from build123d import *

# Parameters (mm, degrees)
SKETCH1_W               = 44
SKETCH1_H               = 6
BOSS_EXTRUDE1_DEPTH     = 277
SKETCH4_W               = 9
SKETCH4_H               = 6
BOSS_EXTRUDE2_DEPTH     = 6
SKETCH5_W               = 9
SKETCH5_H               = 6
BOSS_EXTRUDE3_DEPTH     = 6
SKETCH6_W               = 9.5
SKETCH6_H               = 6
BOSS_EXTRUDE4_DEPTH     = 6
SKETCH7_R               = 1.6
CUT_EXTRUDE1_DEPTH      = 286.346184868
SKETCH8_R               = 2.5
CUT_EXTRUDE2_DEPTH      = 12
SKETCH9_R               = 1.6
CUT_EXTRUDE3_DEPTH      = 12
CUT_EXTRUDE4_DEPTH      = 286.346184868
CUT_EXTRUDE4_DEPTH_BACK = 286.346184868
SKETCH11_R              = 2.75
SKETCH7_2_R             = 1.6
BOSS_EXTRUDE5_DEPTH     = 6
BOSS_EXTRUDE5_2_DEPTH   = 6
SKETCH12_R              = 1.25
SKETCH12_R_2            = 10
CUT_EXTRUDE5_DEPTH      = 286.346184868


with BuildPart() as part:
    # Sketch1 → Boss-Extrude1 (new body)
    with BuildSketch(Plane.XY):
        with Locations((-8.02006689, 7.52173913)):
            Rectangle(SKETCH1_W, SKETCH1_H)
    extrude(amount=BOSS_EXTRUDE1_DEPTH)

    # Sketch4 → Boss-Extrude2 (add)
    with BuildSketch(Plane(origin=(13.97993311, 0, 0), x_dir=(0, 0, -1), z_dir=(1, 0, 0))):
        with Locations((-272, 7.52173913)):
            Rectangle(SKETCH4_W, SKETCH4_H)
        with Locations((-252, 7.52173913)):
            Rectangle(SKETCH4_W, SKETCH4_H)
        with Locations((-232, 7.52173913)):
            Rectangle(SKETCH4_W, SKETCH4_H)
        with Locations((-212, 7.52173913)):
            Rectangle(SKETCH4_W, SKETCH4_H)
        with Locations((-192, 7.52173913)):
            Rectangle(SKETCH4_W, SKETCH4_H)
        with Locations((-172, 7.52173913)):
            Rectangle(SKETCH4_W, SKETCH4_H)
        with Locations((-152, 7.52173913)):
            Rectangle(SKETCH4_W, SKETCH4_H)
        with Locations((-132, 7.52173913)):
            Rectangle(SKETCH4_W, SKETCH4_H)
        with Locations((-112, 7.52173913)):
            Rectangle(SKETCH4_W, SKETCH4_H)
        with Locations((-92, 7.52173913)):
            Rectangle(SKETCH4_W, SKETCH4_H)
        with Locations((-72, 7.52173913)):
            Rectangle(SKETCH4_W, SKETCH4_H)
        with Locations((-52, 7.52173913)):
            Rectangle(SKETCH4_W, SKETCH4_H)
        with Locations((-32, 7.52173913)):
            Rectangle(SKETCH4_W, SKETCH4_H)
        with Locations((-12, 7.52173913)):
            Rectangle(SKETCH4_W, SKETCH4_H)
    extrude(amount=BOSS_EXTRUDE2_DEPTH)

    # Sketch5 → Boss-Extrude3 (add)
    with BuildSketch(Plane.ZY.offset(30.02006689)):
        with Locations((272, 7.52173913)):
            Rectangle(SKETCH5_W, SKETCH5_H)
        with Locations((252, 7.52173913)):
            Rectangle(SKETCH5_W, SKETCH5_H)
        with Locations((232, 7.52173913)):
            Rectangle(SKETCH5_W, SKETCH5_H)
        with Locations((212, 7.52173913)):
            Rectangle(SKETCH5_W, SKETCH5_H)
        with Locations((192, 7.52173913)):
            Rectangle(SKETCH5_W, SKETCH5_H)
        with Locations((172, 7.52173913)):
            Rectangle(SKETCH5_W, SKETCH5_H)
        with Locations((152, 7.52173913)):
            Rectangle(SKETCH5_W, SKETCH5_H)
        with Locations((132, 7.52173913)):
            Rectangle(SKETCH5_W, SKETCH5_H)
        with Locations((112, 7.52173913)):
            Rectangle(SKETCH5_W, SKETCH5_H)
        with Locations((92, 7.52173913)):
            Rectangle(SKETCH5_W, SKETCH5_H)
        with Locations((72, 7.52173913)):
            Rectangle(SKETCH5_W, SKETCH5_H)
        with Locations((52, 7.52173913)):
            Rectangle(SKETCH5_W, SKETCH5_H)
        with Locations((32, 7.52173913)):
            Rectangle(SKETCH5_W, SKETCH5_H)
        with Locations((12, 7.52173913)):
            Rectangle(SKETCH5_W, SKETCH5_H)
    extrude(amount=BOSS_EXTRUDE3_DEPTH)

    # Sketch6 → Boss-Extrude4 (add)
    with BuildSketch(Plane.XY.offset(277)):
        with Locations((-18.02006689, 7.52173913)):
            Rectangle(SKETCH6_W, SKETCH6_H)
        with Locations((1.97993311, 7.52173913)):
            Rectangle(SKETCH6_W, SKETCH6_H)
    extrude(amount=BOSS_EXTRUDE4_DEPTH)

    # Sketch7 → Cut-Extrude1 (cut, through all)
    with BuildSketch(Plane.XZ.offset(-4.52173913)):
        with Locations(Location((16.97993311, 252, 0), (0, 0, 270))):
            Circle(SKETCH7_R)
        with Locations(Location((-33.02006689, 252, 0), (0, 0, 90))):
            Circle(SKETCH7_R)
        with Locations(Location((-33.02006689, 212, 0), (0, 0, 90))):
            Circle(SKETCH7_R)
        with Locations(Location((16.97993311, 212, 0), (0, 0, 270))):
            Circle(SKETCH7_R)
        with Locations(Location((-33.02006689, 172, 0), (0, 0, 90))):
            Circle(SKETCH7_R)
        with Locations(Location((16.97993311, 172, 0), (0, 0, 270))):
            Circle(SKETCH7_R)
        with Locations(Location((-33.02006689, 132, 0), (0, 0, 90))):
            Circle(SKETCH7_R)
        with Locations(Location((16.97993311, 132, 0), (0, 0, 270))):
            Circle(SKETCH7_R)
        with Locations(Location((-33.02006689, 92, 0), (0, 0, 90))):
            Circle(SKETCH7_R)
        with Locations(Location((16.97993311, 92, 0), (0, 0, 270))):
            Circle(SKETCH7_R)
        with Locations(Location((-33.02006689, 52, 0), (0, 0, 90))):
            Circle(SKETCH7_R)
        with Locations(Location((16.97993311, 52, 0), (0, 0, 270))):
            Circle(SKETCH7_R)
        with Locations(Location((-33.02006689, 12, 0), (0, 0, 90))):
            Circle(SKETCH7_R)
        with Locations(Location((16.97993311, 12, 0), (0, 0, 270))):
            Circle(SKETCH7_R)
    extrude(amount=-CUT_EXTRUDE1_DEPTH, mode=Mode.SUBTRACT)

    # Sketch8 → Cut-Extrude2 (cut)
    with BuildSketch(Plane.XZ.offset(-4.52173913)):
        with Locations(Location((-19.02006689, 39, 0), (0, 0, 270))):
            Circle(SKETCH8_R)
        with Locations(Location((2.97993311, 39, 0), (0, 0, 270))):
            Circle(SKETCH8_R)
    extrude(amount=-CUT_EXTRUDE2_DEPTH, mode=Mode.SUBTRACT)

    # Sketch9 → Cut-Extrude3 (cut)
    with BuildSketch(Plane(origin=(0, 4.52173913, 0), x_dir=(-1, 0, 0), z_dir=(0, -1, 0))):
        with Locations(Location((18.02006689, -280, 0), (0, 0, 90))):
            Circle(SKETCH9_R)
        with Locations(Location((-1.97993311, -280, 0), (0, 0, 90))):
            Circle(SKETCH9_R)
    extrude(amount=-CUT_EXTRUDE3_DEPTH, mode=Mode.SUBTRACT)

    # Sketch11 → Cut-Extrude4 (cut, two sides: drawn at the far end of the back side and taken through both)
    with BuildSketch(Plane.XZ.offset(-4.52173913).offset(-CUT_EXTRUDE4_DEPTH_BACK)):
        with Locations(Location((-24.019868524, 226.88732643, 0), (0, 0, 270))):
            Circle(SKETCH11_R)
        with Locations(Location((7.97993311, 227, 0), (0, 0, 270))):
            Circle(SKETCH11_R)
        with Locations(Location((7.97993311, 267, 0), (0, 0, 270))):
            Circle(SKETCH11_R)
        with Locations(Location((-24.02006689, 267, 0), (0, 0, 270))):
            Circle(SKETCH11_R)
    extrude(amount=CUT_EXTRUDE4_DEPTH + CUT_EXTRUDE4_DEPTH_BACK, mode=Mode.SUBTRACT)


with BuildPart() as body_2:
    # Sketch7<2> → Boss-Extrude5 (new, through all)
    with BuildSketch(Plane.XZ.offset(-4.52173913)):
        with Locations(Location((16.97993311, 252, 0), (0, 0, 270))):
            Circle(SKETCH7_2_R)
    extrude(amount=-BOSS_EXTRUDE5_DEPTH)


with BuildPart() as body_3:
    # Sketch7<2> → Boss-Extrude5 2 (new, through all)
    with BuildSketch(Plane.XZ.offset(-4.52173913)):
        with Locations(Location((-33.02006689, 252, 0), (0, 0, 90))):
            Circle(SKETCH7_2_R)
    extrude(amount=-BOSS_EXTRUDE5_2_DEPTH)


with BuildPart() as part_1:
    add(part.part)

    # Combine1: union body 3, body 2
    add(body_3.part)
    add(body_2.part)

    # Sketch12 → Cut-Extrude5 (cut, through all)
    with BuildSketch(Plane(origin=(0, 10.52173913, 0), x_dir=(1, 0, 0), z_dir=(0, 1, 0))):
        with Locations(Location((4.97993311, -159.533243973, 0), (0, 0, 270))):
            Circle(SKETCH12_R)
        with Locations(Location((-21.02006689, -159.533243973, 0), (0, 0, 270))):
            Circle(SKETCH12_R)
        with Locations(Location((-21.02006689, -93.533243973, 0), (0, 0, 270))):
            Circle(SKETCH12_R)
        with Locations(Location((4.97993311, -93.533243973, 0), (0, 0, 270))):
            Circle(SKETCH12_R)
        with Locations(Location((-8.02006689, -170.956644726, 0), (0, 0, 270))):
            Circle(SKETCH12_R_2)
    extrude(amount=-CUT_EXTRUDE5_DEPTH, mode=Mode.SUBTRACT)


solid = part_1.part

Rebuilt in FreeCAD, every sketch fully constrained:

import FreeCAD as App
import Part
import Sketcher
Q = App.Units.Quantity


def add_polygon(sketch, points):
    """Adds a closed chain of lines whose ends are joined by coincident constraints."""
    first, n = sketch.GeometryCount, len(points)
    for a, b in zip(points, points[1:] + points[:1]):
        sketch.addGeometry(Part.LineSegment(App.Vector(*a, 0), App.Vector(*b, 0)), False)
    for i in range(n):
        sketch.addConstraint(Sketcher.Constraint("Coincident", first + i, 2, first + (i + 1) % n, 1))

doc = App.newDocument("Part")
body = doc.addObject("PartDesign::Body", "Body")

# Sketch on XY plane
sketch1 = body.newObject("Sketcher::SketchObject", "Sketch")
sketch1.AttachmentSupport = (doc.getObject("XY_Plane"), [""])
sketch1.MapMode = "FlatFace"
add_polygon(sketch1, [(-30.020067, 10.521739), (-30.020067, 4.521739), (13.979933, 4.521739), (13.979933, 10.521739)])  # lines 0-3
sketch1.addConstraint([
    Sketcher.Constraint("Vertical", 0),
    Sketcher.Constraint("Horizontal", 1),
    Sketcher.Constraint("Vertical", 2),
    Sketcher.Constraint("Horizontal", 3),
    Sketcher.Constraint("DistanceX", 1, 1, 1, 2, Q("44 mm")),
    Sketcher.Constraint("DistanceY", 0, 2, 0, 1, Q("6 mm")),
    Sketcher.Constraint("DistanceY", -1, 1, 0, 2, Q("4.521739 mm")),
    Sketcher.Constraint("DistanceX", 0, 2, -1, 1, Q("30.020067 mm")),
])
pad1 = body.newObject("PartDesign::Pad", "Pad")
pad1.Profile = sketch1
pad1.Length = 277

# Sketch on YZ plane
sketch2 = body.newObject("Sketcher::SketchObject", "Sketch001")
sketch2.AttachmentSupport = (doc.getObject("YZ_Plane"), [""])
sketch2.MapMode = "FlatFace"
sketch2.AttachmentOffset = App.Placement(App.Vector(0, 0, 13.979933), App.Rotation())
add_polygon(sketch2, [(10.521739, 276.5), (4.521739, 276.5), (4.521739, 267.5), (10.521739, 267.5)])  # lines 0-3
add_polygon(sketch2, [(10.521739, 256.5), (4.521739, 256.5), (4.521739, 247.5), (10.521739, 247.5)])  # lines 4-7
add_polygon(sketch2, [(10.521739, 236.5), (4.521739, 236.5), (4.521739, 227.5), (10.521739, 227.5)])  # lines 8-11
add_polygon(sketch2, [(10.521739, 216.5), (4.521739, 216.5), (4.521739, 207.5), (10.521739, 207.5)])  # lines 12-15
add_polygon(sketch2, [(10.521739, 196.5), (4.521739, 196.5), (4.521739, 187.5), (10.521739, 187.5)])  # lines 16-19
add_polygon(sketch2, [(10.521739, 176.5), (4.521739, 176.5), (4.521739, 167.5), (10.521739, 167.5)])  # lines 20-23
add_polygon(sketch2, [(10.521739, 156.5), (4.521739, 156.5), (4.521739, 147.5), (10.521739, 147.5)])  # lines 24-27
add_polygon(sketch2, [(10.521739, 136.5), (4.521739, 136.5), (4.521739, 127.5), (10.521739, 127.5)])  # lines 28-31
add_polygon(sketch2, [(10.521739, 116.5), (4.521739, 116.5), (4.521739, 107.5), (10.521739, 107.5)])  # lines 32-35
add_polygon(sketch2, [(10.521739, 96.5), (4.521739, 96.5), (4.521739, 87.5), (10.521739, 87.5)])  # lines 36-39
add_polygon(sketch2, [(10.521739, 76.5), (4.521739, 76.5), (4.521739, 67.5), (10.521739, 67.5)])  # lines 40-43
add_polygon(sketch2, [(10.521739, 56.5), (4.521739, 56.5), (4.521739, 47.5), (10.521739, 47.5)])  # lines 44-47
add_polygon(sketch2, [(10.521739, 36.5), (4.521739, 36.5), (4.521739, 27.5), (10.521739, 27.5)])  # lines 48-51
add_polygon(sketch2, [(10.521739, 16.5), (4.521739, 16.5), (4.521739, 7.5), (10.521739, 7.5)])  # lines 52-55
sketch2.addConstraint([
    Sketcher.Constraint("Horizontal", 0),
    Sketcher.Constraint("Vertical", 1),
    Sketcher.Constraint("Horizontal", 2),
    Sketcher.Constraint("Vertical", 3),
    Sketcher.Constraint("Horizontal", 4),
    Sketcher.Constraint("Vertical", 5),
    Sketcher.Constraint("Horizontal", 6),
    Sketcher.Constraint("Vertical", 7),
    Sketcher.Constraint("Horizontal", 8),
    Sketcher.Constraint("Vertical", 9),
    Sketcher.Constraint("Horizontal", 10),
    Sketcher.Constraint("Vertical", 11),
    Sketcher.Constraint("Horizontal", 12),
    Sketcher.Constraint("Vertical", 13),
    Sketcher.Constraint("Horizontal", 14),
    Sketcher.Constraint("Vertical", 15),
    Sketcher.Constraint("Horizontal", 16),
    Sketcher.Constraint("Vertical", 17),
    Sketcher.Constraint("Horizontal", 18),
    Sketcher.Constraint("Vertical", 19),
    Sketcher.Constraint("Horizontal", 20),
    Sketcher.Constraint("Vertical", 21),
    Sketcher.Constraint("Horizontal", 22),
    Sketcher.Constraint("Vertical", 23),
    Sketcher.Constraint("Horizontal", 24),
    Sketcher.Constraint("Vertical", 25),
    Sketcher.Constraint("Horizontal", 26),
    Sketcher.Constraint("Vertical", 27),
    Sketcher.Constraint("Horizontal", 28),
    Sketcher.Constraint("Vertical", 29),
    Sketcher.Constraint("Horizontal", 30),
    Sketcher.Constraint("Vertical", 31),
    Sketcher.Constraint("Horizontal", 32),
    Sketcher.Constraint("Vertical", 33),
    Sketcher.Constraint("Horizontal", 34),
    Sketcher.Constraint("Vertical", 35),
    Sketcher.Constraint("Horizontal", 36),
    Sketcher.Constraint("Vertical", 37),
    Sketcher.Constraint("Horizontal", 38),
    Sketcher.Constraint("Vertical", 39),
    Sketcher.Constraint("Horizontal", 40),
    Sketcher.Constraint("Vertical", 41),
    Sketcher.Constraint("Horizontal", 42),
    Sketcher.Constraint("Vertical", 43),
    Sketcher.Constraint("Horizontal", 44),
    Sketcher.Constraint("Vertical", 45),
    Sketcher.Constraint("Horizontal", 46),
    Sketcher.Constraint("Vertical", 47),
    Sketcher.Constraint("Horizontal", 48),
    Sketcher.Constraint("Vertical", 49),
    Sketcher.Constraint("Horizontal", 50),
    Sketcher.Constraint("Vertical", 51),
    Sketcher.Constraint("Horizontal", 52),
    Sketcher.Constraint("Vertical", 53),
    Sketcher.Constraint("Horizontal", 54),
    Sketcher.Constraint("Vertical", 55),
    Sketcher.Constraint("Vertical", 1, 2, 4, 2),
    Sketcher.Constraint("Vertical", 3, 2, 6, 2),
    Sketcher.Constraint("Vertical", 5, 2, 8, 2),
    Sketcher.Constraint("Vertical", 7, 2, 10, 2),
    Sketcher.Constraint("Vertical", 9, 2, 12, 2),
    Sketcher.Constraint("Vertical", 11, 2, 14, 2),
    Sketcher.Constraint("Vertical", 13, 2, 16, 2),
    Sketcher.Constraint("Vertical", 15, 2, 18, 2),
    Sketcher.Constraint("Vertical", 17, 2, 20, 2),
    Sketcher.Constraint("Vertical", 19, 2, 22, 2),
    Sketcher.Constraint("Vertical", 21, 2, 24, 2),
    Sketcher.Constraint("Vertical", 23, 2, 26, 2),
    Sketcher.Constraint("Vertical", 25, 2, 28, 2),
    Sketcher.Constraint("Vertical", 27, 2, 30, 2),
    Sketcher.Constraint("Vertical", 29, 2, 32, 2),
    Sketcher.Constraint("Vertical", 31, 2, 34, 2),
    Sketcher.Constraint("Vertical", 33, 2, 36, 2),
    Sketcher.Constraint("Vertical", 35, 2, 38, 2),
    Sketcher.Constraint("Vertical", 37, 2, 40, 2),
    Sketcher.Constraint("Vertical", 39, 2, 42, 2),
    Sketcher.Constraint("Vertical", 41, 2, 44, 2),
    Sketcher.Constraint("Vertical", 43, 2, 46, 2),
    Sketcher.Constraint("Vertical", 45, 2, 48, 2),
    Sketcher.Constraint("Vertical", 47, 2, 50, 2),
    Sketcher.Constraint("Vertical", 49, 2, 52, 2),
    Sketcher.Constraint("Vertical", 51, 2, 54, 2),
    Sketcher.Constraint("Equal", 3, 5),
    Sketcher.Constraint("Equal", 7, 9),
    Sketcher.Constraint("Equal", 11, 13),
    Sketcher.Constraint("Equal", 15, 17),
    Sketcher.Constraint("Equal", 19, 21),
    Sketcher.Constraint("Equal", 23, 25),
    Sketcher.Constraint("Equal", 27, 29),
    Sketcher.Constraint("Equal", 31, 33),
    Sketcher.Constraint("Equal", 35, 37),
    Sketcher.Constraint("Equal", 39, 41),
    Sketcher.Constraint("Equal", 43, 45),
    Sketcher.Constraint("Equal", 47, 49),
    Sketcher.Constraint("Equal", 51, 53),
    Sketcher.Constraint("DistanceX", 0, 2, 0, 1, Q("6 mm")),
    Sketcher.Constraint("DistanceY", 1, 2, 1, 1, Q("9 mm")),
    Sketcher.Constraint("DistanceY", 4, 2, 1, 2, Q("11 mm")),
    Sketcher.Constraint("DistanceY", 8, 2, 5, 2, Q("11 mm")),
    Sketcher.Constraint("DistanceY", 12, 2, 9, 2, Q("11 mm")),
    Sketcher.Constraint("DistanceY", 16, 2, 13, 2, Q("11 mm")),
    Sketcher.Constraint("DistanceY", 20, 2, 17, 2, Q("11 mm")),
    Sketcher.Constraint("DistanceY", 24, 2, 21, 2, Q("11 mm")),
    Sketcher.Constraint("DistanceY", 28, 2, 25, 2, Q("11 mm")),
    Sketcher.Constraint("DistanceY", 32, 2, 29, 2, Q("11 mm")),
    Sketcher.Constraint("DistanceY", 36, 2, 33, 2, Q("11 mm")),
    Sketcher.Constraint("DistanceY", 40, 2, 37, 2, Q("11 mm")),
    Sketcher.Constraint("DistanceY", 44, 2, 41, 2, Q("11 mm")),
    Sketcher.Constraint("DistanceY", 48, 2, 45, 2, Q("11 mm")),
    Sketcher.Constraint("DistanceY", 52, 2, 49, 2, Q("11 mm")),
    Sketcher.Constraint("DistanceY", -1, 1, 0, 2, Q("276.5 mm")),
    Sketcher.Constraint("DistanceX", -1, 1, 0, 2, Q("4.521739 mm")),
])
pad2 = body.newObject("PartDesign::Pad", "Pad001")
pad2.Profile = sketch2
pad2.Length = 6

# Sketch on YZ plane
sketch3 = body.newObject("Sketcher::SketchObject", "Sketch002")
sketch3.AttachmentSupport = (doc.getObject("YZ_Plane"), [""])
sketch3.MapMode = "FlatFace"
sketch3.AttachmentOffset = App.Placement(App.Vector(0, 0, -30.020067), App.Rotation())
add_polygon(sketch3, [(10.521739, 267.5), (4.521739, 267.5), (4.521739, 276.5), (10.521739, 276.5)])  # lines 0-3
add_polygon(sketch3, [(10.521739, 247.5), (4.521739, 247.5), (4.521739, 256.5), (10.521739, 256.5)])  # lines 4-7
add_polygon(sketch3, [(10.521739, 227.5), (4.521739, 227.5), (4.521739, 236.5), (10.521739, 236.5)])  # lines 8-11
add_polygon(sketch3, [(10.521739, 207.5), (4.521739, 207.5), (4.521739, 216.5), (10.521739, 216.5)])  # lines 12-15
add_polygon(sketch3, [(10.521739, 187.5), (4.521739, 187.5), (4.521739, 196.5), (10.521739, 196.5)])  # lines 16-19
add_polygon(sketch3, [(10.521739, 167.5), (4.521739, 167.5), (4.521739, 176.5), (10.521739, 176.5)])  # lines 20-23
add_polygon(sketch3, [(10.521739, 147.5), (4.521739, 147.5), (4.521739, 156.5), (10.521739, 156.5)])  # lines 24-27
add_polygon(sketch3, [(10.521739, 127.5), (4.521739, 127.5), (4.521739, 136.5), (10.521739, 136.5)])  # lines 28-31
add_polygon(sketch3, [(10.521739, 107.5), (4.521739, 107.5), (4.521739, 116.5), (10.521739, 116.5)])  # lines 32-35
add_polygon(sketch3, [(10.521739, 87.5), (4.521739, 87.5), (4.521739, 96.5), (10.521739, 96.5)])  # lines 36-39
add_polygon(sketch3, [(10.521739, 67.5), (4.521739, 67.5), (4.521739, 76.5), (10.521739, 76.5)])  # lines 40-43
add_polygon(sketch3, [(10.521739, 47.5), (4.521739, 47.5), (4.521739, 56.5), (10.521739, 56.5)])  # lines 44-47
add_polygon(sketch3, [(10.521739, 27.5), (4.521739, 27.5), (4.521739, 36.5), (10.521739, 36.5)])  # lines 48-51
add_polygon(sketch3, [(10.521739, 7.5), (4.521739, 7.5), (4.521739, 16.5), (10.521739, 16.5)])  # lines 52-55
sketch3.addConstraint([
    Sketcher.Constraint("Horizontal", 0),
    Sketcher.Constraint("Vertical", 1),
    Sketcher.Constraint("Horizontal", 2),
    Sketcher.Constraint("Vertical", 3),
    Sketcher.Constraint("Horizontal", 4),
    Sketcher.Constraint("Vertical", 5),
    Sketcher.Constraint("Horizontal", 6),
    Sketcher.Constraint("Vertical", 7),
    Sketcher.Constraint("Horizontal", 8),
    Sketcher.Constraint("Vertical", 9),
    Sketcher.Constraint("Horizontal", 10),
    Sketcher.Constraint("Vertical", 11),
    Sketcher.Constraint("Horizontal", 12),
    Sketcher.Constraint("Vertical", 13),
    Sketcher.Constraint("Horizontal", 14),
    Sketcher.Constraint("Vertical", 15),
    Sketcher.Constraint("Horizontal", 16),
    Sketcher.Constraint("Vertical", 17),
    Sketcher.Constraint("Horizontal", 18),
    Sketcher.Constraint("Vertical", 19),
    Sketcher.Constraint("Horizontal", 20),
    Sketcher.Constraint("Vertical", 21),
    Sketcher.Constraint("Horizontal", 22),
    Sketcher.Constraint("Vertical", 23),
    Sketcher.Constraint("Horizontal", 24),
    Sketcher.Constraint("Vertical", 25),
    Sketcher.Constraint("Horizontal", 26),
    Sketcher.Constraint("Vertical", 27),
    Sketcher.Constraint("Horizontal", 28),
    Sketcher.Constraint("Vertical", 29),
    Sketcher.Constraint("Horizontal", 30),
    Sketcher.Constraint("Vertical", 31),
    Sketcher.Constraint("Horizontal", 32),
    Sketcher.Constraint("Vertical", 33),
    Sketcher.Constraint("Horizontal", 34),
    Sketcher.Constraint("Vertical", 35),
    Sketcher.Constraint("Horizontal", 36),
    Sketcher.Constraint("Vertical", 37),
    Sketcher.Constraint("Horizontal", 38),
    Sketcher.Constraint("Vertical", 39),
    Sketcher.Constraint("Horizontal", 40),
    Sketcher.Constraint("Vertical", 41),
    Sketcher.Constraint("Horizontal", 42),
    Sketcher.Constraint("Vertical", 43),
    Sketcher.Constraint("Horizontal", 44),
    Sketcher.Constraint("Vertical", 45),
    Sketcher.Constraint("Horizontal", 46),
    Sketcher.Constraint("Vertical", 47),
    Sketcher.Constraint("Horizontal", 48),
    Sketcher.Constraint("Vertical", 49),
    Sketcher.Constraint("Horizontal", 50),
    Sketcher.Constraint("Vertical", 51),
    Sketcher.Constraint("Horizontal", 52),
    Sketcher.Constraint("Vertical", 53),
    Sketcher.Constraint("Horizontal", 54),
    Sketcher.Constraint("Vertical", 55),
    Sketcher.Constraint("Vertical", 1, 2, 4, 2),
    Sketcher.Constraint("Vertical", 3, 2, 6, 2),
    Sketcher.Constraint("Vertical", 5, 2, 8, 2),
    Sketcher.Constraint("Vertical", 7, 2, 10, 2),
    Sketcher.Constraint("Vertical", 9, 2, 12, 2),
    Sketcher.Constraint("Vertical", 11, 2, 14, 2),
    Sketcher.Constraint("Vertical", 13, 2, 16, 2),
    Sketcher.Constraint("Vertical", 15, 2, 18, 2),
    Sketcher.Constraint("Vertical", 17, 2, 20, 2),
    Sketcher.Constraint("Vertical", 19, 2, 22, 2),
    Sketcher.Constraint("Vertical", 21, 2, 24, 2),
    Sketcher.Constraint("Vertical", 23, 2, 26, 2),
    Sketcher.Constraint("Vertical", 25, 2, 28, 2),
    Sketcher.Constraint("Vertical", 27, 2, 30, 2),
    Sketcher.Constraint("Vertical", 29, 2, 32, 2),
    Sketcher.Constraint("Vertical", 31, 2, 34, 2),
    Sketcher.Constraint("Vertical", 33, 2, 36, 2),
    Sketcher.Constraint("Vertical", 35, 2, 38, 2),
    Sketcher.Constraint("Vertical", 37, 2, 40, 2),
    Sketcher.Constraint("Vertical", 39, 2, 42, 2),
    Sketcher.Constraint("Vertical", 41, 2, 44, 2),
    Sketcher.Constraint("Vertical", 43, 2, 46, 2),
    Sketcher.Constraint("Vertical", 45, 2, 48, 2),
    Sketcher.Constraint("Vertical", 47, 2, 50, 2),
    Sketcher.Constraint("Vertical", 49, 2, 52, 2),
    Sketcher.Constraint("Vertical", 51, 2, 54, 2),
    Sketcher.Constraint("Equal", 3, 5),
    Sketcher.Constraint("Equal", 7, 9),
    Sketcher.Constraint("Equal", 11, 13),
    Sketcher.Constraint("Equal", 15, 17),
    Sketcher.Constraint("Equal", 19, 21),
    Sketcher.Constraint("Equal", 23, 25),
    Sketcher.Constraint("Equal", 27, 29),
    Sketcher.Constraint("Equal", 31, 33),
    Sketcher.Constraint("Equal", 35, 37),
    Sketcher.Constraint("Equal", 39, 41),
    Sketcher.Constraint("Equal", 43, 45),
    Sketcher.Constraint("Equal", 47, 49),
    Sketcher.Constraint("Equal", 51, 53),
    Sketcher.Constraint("DistanceX", 0, 2, 0, 1, Q("6 mm")),
    Sketcher.Constraint("DistanceY", 1, 1, 1, 2, Q("9 mm")),
    Sketcher.Constraint("DistanceY", 4, 2, 0, 2, Q("20 mm")),
    Sketcher.Constraint("DistanceY", 8, 2, 4, 2, Q("20 mm")),
    Sketcher.Constraint("DistanceY", 12, 2, 8, 2, Q("20 mm")),
    Sketcher.Constraint("DistanceY", 16, 2, 12, 2, Q("20 mm")),
    Sketcher.Constraint("DistanceY", 20, 2, 16, 2, Q("20 mm")),
    Sketcher.Constraint("DistanceY", 24, 2, 20, 2, Q("20 mm")),
    Sketcher.Constraint("DistanceY", 28, 2, 24, 2, Q("20 mm")),
    Sketcher.Constraint("DistanceY", 32, 2, 28, 2, Q("20 mm")),
    Sketcher.Constraint("DistanceY", 36, 2, 32, 2, Q("20 mm")),
    Sketcher.Constraint("DistanceY", 40, 2, 36, 2, Q("20 mm")),
    Sketcher.Constraint("DistanceY", 44, 2, 40, 2, Q("20 mm")),
    Sketcher.Constraint("DistanceY", 48, 2, 44, 2, Q("20 mm")),
    Sketcher.Constraint("DistanceY", 52, 2, 48, 2, Q("20 mm")),
    Sketcher.Constraint("DistanceY", -1, 1, 0, 2, Q("267.5 mm")),
    Sketcher.Constraint("DistanceX", -1, 1, 0, 2, Q("4.521739 mm")),
])
pad3 = body.newObject("PartDesign::Pad", "Pad002")
pad3.Profile = sketch3
pad3.Length = 6
pad3.Reversed = True

# Sketch on XY plane
sketch4 = body.newObject("Sketcher::SketchObject", "Sketch003")
sketch4.AttachmentSupport = (doc.getObject("XY_Plane"), [""])
sketch4.MapMode = "FlatFace"
sketch4.AttachmentOffset = App.Placement(App.Vector(0, 0, 277), App.Rotation())
add_polygon(sketch4, [(-22.770067, 10.521739), (-22.770067, 4.521739), (-13.270067, 4.521739), (-13.270067, 10.521739)])  # lines 0-3
add_polygon(sketch4, [(-2.770067, 10.521739), (-2.770067, 4.521739), (6.729933, 4.521739), (6.729933, 10.521739)])  # lines 4-7
sketch4.addConstraint([
    Sketcher.Constraint("Vertical", 0),
    Sketcher.Constraint("Horizontal", 1),
    Sketcher.Constraint("Vertical", 2),
    Sketcher.Constraint("Horizontal", 3),
    Sketcher.Constraint("Vertical", 4),
    Sketcher.Constraint("Horizontal", 5),
    Sketcher.Constraint("Vertical", 6),
    Sketcher.Constraint("Horizontal", 7),
    Sketcher.Constraint("Horizontal", 1, 2, 4, 2),
    Sketcher.Constraint("Horizontal", 3, 2, 6, 2),
    Sketcher.Constraint("Equal", 3, 5),
    Sketcher.Constraint("DistanceY", 0, 2, 0, 1, Q("6 mm")),
    Sketcher.Constraint("DistanceX", 1, 1, 1, 2, Q("9.5 mm")),
    Sketcher.Constraint("DistanceX", 0, 2, 4, 2, Q("20 mm")),
    Sketcher.Constraint("DistanceY", -1, 1, 0, 2, Q("4.521739 mm")),
    Sketcher.Constraint("DistanceX", 0, 2, -1, 1, Q("22.770067 mm")),
])
pad4 = body.newObject("PartDesign::Pad", "Pad003")
pad4.Profile = sketch4
pad4.Length = 6

# Sketch on XZ plane
sketch5 = body.newObject("Sketcher::SketchObject", "Sketch004")
sketch5.AttachmentSupport = (doc.getObject("XZ_Plane"), [""])
sketch5.MapMode = "FlatFace"
sketch5.AttachmentOffset = App.Placement(App.Vector(0, 0, -4.521739), App.Rotation())
sketch5.addGeometry([
    Part.Circle(App.Vector(16.979933, 252, 0), App.Vector(0, 0, 1), 1.6),  # 0
    Part.Circle(App.Vector(-33.020067, 252, 0), App.Vector(0, 0, 1), 1.6),  # 1
    Part.Circle(App.Vector(-33.020067, 212, 0), App.Vector(0, 0, 1), 1.6),  # 2
    Part.Circle(App.Vector(16.979933, 212, 0), App.Vector(0, 0, 1), 1.6),  # 3
    Part.Circle(App.Vector(-33.020067, 172, 0), App.Vector(0, 0, 1), 1.6),  # 4
    Part.Circle(App.Vector(16.979933, 172, 0), App.Vector(0, 0, 1), 1.6),  # 5
    Part.Circle(App.Vector(-33.020067, 132, 0), App.Vector(0, 0, 1), 1.6),  # 6
    Part.Circle(App.Vector(16.979933, 132, 0), App.Vector(0, 0, 1), 1.6),  # 7
    Part.Circle(App.Vector(-33.020067, 92, 0), App.Vector(0, 0, 1), 1.6),  # 8
    Part.Circle(App.Vector(16.979933, 92, 0), App.Vector(0, 0, 1), 1.6),  # 9
    Part.Circle(App.Vector(-33.020067, 52, 0), App.Vector(0, 0, 1), 1.6),  # 10
    Part.Circle(App.Vector(16.979933, 52, 0), App.Vector(0, 0, 1), 1.6),  # 11
    Part.Circle(App.Vector(-33.020067, 12, 0), App.Vector(0, 0, 1), 1.6),  # 12
    Part.Circle(App.Vector(16.979933, 12, 0), App.Vector(0, 0, 1), 1.6),  # 13
], False)
sketch5.addConstraint([
    Sketcher.Constraint("Equal", 0, 1),
    Sketcher.Constraint("Equal", 1, 2),
    Sketcher.Constraint("Equal", 2, 3),
    Sketcher.Constraint("Equal", 3, 4),
    Sketcher.Constraint("Equal", 4, 5),
    Sketcher.Constraint("Equal", 5, 6),
    Sketcher.Constraint("Equal", 6, 7),
    Sketcher.Constraint("Equal", 7, 8),
    Sketcher.Constraint("Equal", 8, 9),
    Sketcher.Constraint("Equal", 9, 10),
    Sketcher.Constraint("Equal", 10, 11),
    Sketcher.Constraint("Equal", 11, 12),
    Sketcher.Constraint("Equal", 12, 13),
    Sketcher.Constraint("Horizontal", 0, 3, 1, 3),
    Sketcher.Constraint("Horizontal", 2, 3, 3, 3),
    Sketcher.Constraint("Horizontal", 4, 3, 5, 3),
    Sketcher.Constraint("Horizontal", 6, 3, 7, 3),
    Sketcher.Constraint("Horizontal", 8, 3, 9, 3),
    Sketcher.Constraint("Horizontal", 10, 3, 11, 3),
    Sketcher.Constraint("Horizontal", 12, 3, 13, 3),
    Sketcher.Constraint("Vertical", 1, 3, 2, 3),
    Sketcher.Constraint("Vertical", 0, 3, 3, 3),
    Sketcher.Constraint("Vertical", 2, 3, 4, 3),
    Sketcher.Constraint("Vertical", 3, 3, 5, 3),
    Sketcher.Constraint("Vertical", 4, 3, 6, 3),
    Sketcher.Constraint("Vertical", 5, 3, 7, 3),
    Sketcher.Constraint("Vertical", 6, 3, 8, 3),
    Sketcher.Constraint("Vertical", 7, 3, 9, 3),
    Sketcher.Constraint("Vertical", 8, 3, 10, 3),
    Sketcher.Constraint("Vertical", 9, 3, 11, 3),
    Sketcher.Constraint("Vertical", 10, 3, 12, 3),
    Sketcher.Constraint("Vertical", 11, 3, 13, 3),
    Sketcher.Constraint("Diameter", 0, Q("3.2 mm")),
    Sketcher.Constraint("DistanceY", -1, 1, 0, 3, Q("252 mm")),
    Sketcher.Constraint("DistanceY", -1, 1, 2, 3, Q("212 mm")),
    Sketcher.Constraint("DistanceY", -1, 1, 4, 3, Q("172 mm")),
    Sketcher.Constraint("DistanceY", -1, 1, 6, 3, Q("132 mm")),
    Sketcher.Constraint("DistanceY", -1, 1, 8, 3, Q("92 mm")),
    Sketcher.Constraint("DistanceY", -1, 1, 10, 3, Q("52 mm")),
    Sketcher.Constraint("DistanceY", -1, 1, 12, 3, Q("12 mm")),
    Sketcher.Constraint("DistanceX", 1, 3, 0, 3, Q("50 mm")),
    Sketcher.Constraint("DistanceX", -1, 1, 0, 3, Q("16.979933 mm")),
])
pocket1 = body.newObject("PartDesign::Pocket", "Pocket")
pocket1.Profile = sketch5
pocket1.Type = "ThroughAll"

# Sketch on XZ plane
sketch6 = body.newObject("Sketcher::SketchObject", "Sketch005")
sketch6.AttachmentSupport = (doc.getObject("XZ_Plane"), [""])
sketch6.MapMode = "FlatFace"
sketch6.AttachmentOffset = App.Placement(App.Vector(0, 0, -4.521739), App.Rotation())
sketch6.addGeometry([
    Part.Circle(App.Vector(-19.020067, 39, 0), App.Vector(0, 0, 1), 2.5),
    Part.Circle(App.Vector(2.979933, 39, 0), App.Vector(0, 0, 1), 2.5),
], False)
sketch6.addConstraint([
    Sketcher.Constraint("Equal", 0, 1),
    Sketcher.Constraint("Horizontal", 0, 3, 1, 3),
    Sketcher.Constraint("Diameter", 0, Q("5 mm")),
    Sketcher.Constraint("DistanceY", -1, 1, 0, 3, Q("39 mm")),
    Sketcher.Constraint("DistanceX", 0, 3, 1, 3, Q("22 mm")),
    Sketcher.Constraint("DistanceX", 0, 3, -1, 1, Q("19.020067 mm")),
])
pocket2 = body.newObject("PartDesign::Pocket", "Pocket001")
pocket2.Profile = sketch6
pocket2.Length = 12

# Sketch on XZ plane
sketch7 = body.newObject("Sketcher::SketchObject", "Sketch006")
sketch7.AttachmentSupport = (doc.getObject("XZ_Plane"), [""])
sketch7.MapMode = "FlatFace"
sketch7.AttachmentOffset = App.Placement(App.Vector(0, 0, -4.521739), App.Rotation())
sketch7.addGeometry([
    Part.Circle(App.Vector(-18.020067, 280, 0), App.Vector(0, 0, 1), 1.6),
    Part.Circle(App.Vector(1.979933, 280, 0), App.Vector(0, 0, 1), 1.6),
], False)
sketch7.addConstraint([
    Sketcher.Constraint("Equal", 0, 1),
    Sketcher.Constraint("Horizontal", 0, 3, 1, 3),
    Sketcher.Constraint("Diameter", 0, Q("3.2 mm")),
    Sketcher.Constraint("DistanceY", -1, 1, 0, 3, Q("280 mm")),
    Sketcher.Constraint("DistanceX", 0, 3, 1, 3, Q("20 mm")),
    Sketcher.Constraint("DistanceX", 0, 3, -1, 1, Q("18.020067 mm")),
])
pocket3 = body.newObject("PartDesign::Pocket", "Pocket002")
pocket3.Profile = sketch7
pocket3.Length = 12

# Sketch on XZ plane
sketch8 = body.newObject("Sketcher::SketchObject", "Sketch007")
sketch8.AttachmentSupport = (doc.getObject("XZ_Plane"), [""])
sketch8.MapMode = "FlatFace"
sketch8.AttachmentOffset = App.Placement(App.Vector(0, 0, -4.521739), App.Rotation())
sketch8.addGeometry([
    Part.Circle(App.Vector(-24.019869, 226.887326, 0), App.Vector(0, 0, 1), 2.75),
    Part.Circle(App.Vector(7.979933, 227, 0), App.Vector(0, 0, 1), 2.75),
    Part.Circle(App.Vector(7.979933, 267, 0), App.Vector(0, 0, 1), 2.75),
    Part.Circle(App.Vector(-24.020067, 267, 0), App.Vector(0, 0, 1), 2.75),
], False)
sketch8.addConstraint([
    Sketcher.Constraint("Equal", 0, 1),
    Sketcher.Constraint("Equal", 1, 2),
    Sketcher.Constraint("Equal", 2, 3),
    Sketcher.Constraint("Horizontal", 2, 3, 3, 3),
    Sketcher.Constraint("Vertical", 1, 3, 2, 3),
    Sketcher.Constraint("Diameter", 0, Q("5.5 mm")),
    Sketcher.Constraint("DistanceY", -1, 1, 1, 3, Q("227 mm")),
    Sketcher.Constraint("DistanceY", -1, 1, 2, 3, Q("267 mm")),
    Sketcher.Constraint("DistanceX", 3, 3, 2, 3, Q("32 mm")),
    Sketcher.Constraint("DistanceX", 0, 3, 1, 3, Q("31.999802 mm")),
    Sketcher.Constraint("DistanceX", 0, 3, -1, 1, Q("24.019869 mm")),
    Sketcher.Constraint("DistanceY", -1, 1, 0, 3, Q("226.887326 mm")),
])
pocket4 = body.newObject("PartDesign::Pocket", "Pocket003")
pocket4.Profile = sketch8
pocket4.Type = "ThroughAll"
pocket4.Midplane = True
body2 = doc.addObject("PartDesign::Body", "Body001")

# Sketch on XZ plane
sketch9 = body2.newObject("Sketcher::SketchObject", "Sketch008")
sketch9.AttachmentSupport = (doc.getObject("XZ_Plane001"), [""])
sketch9.MapMode = "FlatFace"
sketch9.AttachmentOffset = App.Placement(App.Vector(0, 0, -4.521739), App.Rotation())
sketch9.addGeometry(Part.Circle(App.Vector(16.979933, 252, 0), App.Vector(0, 0, 1), 1.6), False)
sketch9.addConstraint([
    Sketcher.Constraint("Diameter", 0, Q("3.2 mm")),
    Sketcher.Constraint("DistanceY", -1, 1, 0, 3, Q("252 mm")),
    Sketcher.Constraint("DistanceX", -1, 1, 0, 3, Q("16.979933 mm")),
])
pad5 = body2.newObject("PartDesign::Pad", "Pad004")
pad5.Profile = sketch9
pad5.Length = 6
pad5.Reversed = True
body3 = doc.addObject("PartDesign::Body", "Body002")

# Sketch on XZ plane
sketch10 = body3.newObject("Sketcher::SketchObject", "Sketch009")
sketch10.AttachmentSupport = (doc.getObject("XZ_Plane002"), [""])
sketch10.MapMode = "FlatFace"
sketch10.AttachmentOffset = App.Placement(App.Vector(0, 0, -4.521739), App.Rotation())
sketch10.addGeometry(Part.Circle(App.Vector(-33.020067, 252, 0), App.Vector(0, 0, 1), 1.6), False)
sketch10.addConstraint([
    Sketcher.Constraint("Diameter", 0, Q("3.2 mm")),
    Sketcher.Constraint("DistanceY", -1, 1, 0, 3, Q("252 mm")),
    Sketcher.Constraint("DistanceX", 0, 3, -1, 1, Q("33.020067 mm")),
])
pad6 = body3.newObject("PartDesign::Pad", "Pad005")
pad6.Profile = sketch10
pad6.Length = 6
pad6.Reversed = True
doc.recompute()

boolean = body.newObject("PartDesign::Boolean", "Boolean")
boolean.Type = "Fuse"
boolean.addObjects([body3])
doc.recompute()

boolean2 = body.newObject("PartDesign::Boolean", "Boolean001")
boolean2.Type = "Fuse"
boolean2.addObjects([body2])

# Sketch on XZ plane
sketch11 = body.newObject("Sketcher::SketchObject", "Sketch010")
sketch11.AttachmentSupport = (doc.getObject("XZ_Plane"), [""])
sketch11.MapMode = "FlatFace"
sketch11.AttachmentOffset = App.Placement(App.Vector(0, 0, -10.521739), App.Rotation())
sketch11.addGeometry([
    Part.Circle(App.Vector(4.979933, 159.533244, 0), App.Vector(0, 0, 1), 1.25),  # 0
    Part.Circle(App.Vector(-21.020067, 159.533244, 0), App.Vector(0, 0, 1), 1.25),  # 1
    Part.Circle(App.Vector(-21.020067, 93.533244, 0), App.Vector(0, 0, 1), 1.25),  # 2
    Part.Circle(App.Vector(4.979933, 93.533244, 0), App.Vector(0, 0, 1), 1.25),  # 3
    Part.Circle(App.Vector(-8.020067, 170.956645, 0), App.Vector(0, 0, 1), 10),  # 4
], False)
sketch11.addConstraint([
    Sketcher.Constraint("Equal", 0, 1),
    Sketcher.Constraint("Equal", 1, 2),
    Sketcher.Constraint("Equal", 2, 3),
    Sketcher.Constraint("Horizontal", 0, 3, 1, 3),
    Sketcher.Constraint("Horizontal", 2, 3, 3, 3),
    Sketcher.Constraint("Vertical", 1, 3, 2, 3),
    Sketcher.Constraint("Vertical", 0, 3, 3, 3),
    Sketcher.Constraint("Diameter", 4, Q("20 mm")),
    Sketcher.Constraint("Diameter", 0, Q("2.5 mm")),
    Sketcher.Constraint("DistanceX", 1, 3, 0, 3, Q("26 mm")),
    Sketcher.Constraint("DistanceY", 2, 3, 1, 3, Q("66 mm")),
    Sketcher.Constraint("DistanceX", 4, 3, 0, 3, Q("13 mm")),
    Sketcher.Constraint("DistanceY", 0, 3, 4, 3, Q("11.423401 mm")),
    Sketcher.Constraint("DistanceX", -1, 1, 0, 3, Q("4.979933 mm")),
    Sketcher.Constraint("DistanceY", -1, 1, 0, 3, Q("159.533244 mm")),
])
pocket5 = body.newObject("PartDesign::Pocket", "Pocket004")
pocket5.Profile = sketch11
pocket5.Type = "ThroughAll"
pocket5.Reversed = True

doc.recompute()
